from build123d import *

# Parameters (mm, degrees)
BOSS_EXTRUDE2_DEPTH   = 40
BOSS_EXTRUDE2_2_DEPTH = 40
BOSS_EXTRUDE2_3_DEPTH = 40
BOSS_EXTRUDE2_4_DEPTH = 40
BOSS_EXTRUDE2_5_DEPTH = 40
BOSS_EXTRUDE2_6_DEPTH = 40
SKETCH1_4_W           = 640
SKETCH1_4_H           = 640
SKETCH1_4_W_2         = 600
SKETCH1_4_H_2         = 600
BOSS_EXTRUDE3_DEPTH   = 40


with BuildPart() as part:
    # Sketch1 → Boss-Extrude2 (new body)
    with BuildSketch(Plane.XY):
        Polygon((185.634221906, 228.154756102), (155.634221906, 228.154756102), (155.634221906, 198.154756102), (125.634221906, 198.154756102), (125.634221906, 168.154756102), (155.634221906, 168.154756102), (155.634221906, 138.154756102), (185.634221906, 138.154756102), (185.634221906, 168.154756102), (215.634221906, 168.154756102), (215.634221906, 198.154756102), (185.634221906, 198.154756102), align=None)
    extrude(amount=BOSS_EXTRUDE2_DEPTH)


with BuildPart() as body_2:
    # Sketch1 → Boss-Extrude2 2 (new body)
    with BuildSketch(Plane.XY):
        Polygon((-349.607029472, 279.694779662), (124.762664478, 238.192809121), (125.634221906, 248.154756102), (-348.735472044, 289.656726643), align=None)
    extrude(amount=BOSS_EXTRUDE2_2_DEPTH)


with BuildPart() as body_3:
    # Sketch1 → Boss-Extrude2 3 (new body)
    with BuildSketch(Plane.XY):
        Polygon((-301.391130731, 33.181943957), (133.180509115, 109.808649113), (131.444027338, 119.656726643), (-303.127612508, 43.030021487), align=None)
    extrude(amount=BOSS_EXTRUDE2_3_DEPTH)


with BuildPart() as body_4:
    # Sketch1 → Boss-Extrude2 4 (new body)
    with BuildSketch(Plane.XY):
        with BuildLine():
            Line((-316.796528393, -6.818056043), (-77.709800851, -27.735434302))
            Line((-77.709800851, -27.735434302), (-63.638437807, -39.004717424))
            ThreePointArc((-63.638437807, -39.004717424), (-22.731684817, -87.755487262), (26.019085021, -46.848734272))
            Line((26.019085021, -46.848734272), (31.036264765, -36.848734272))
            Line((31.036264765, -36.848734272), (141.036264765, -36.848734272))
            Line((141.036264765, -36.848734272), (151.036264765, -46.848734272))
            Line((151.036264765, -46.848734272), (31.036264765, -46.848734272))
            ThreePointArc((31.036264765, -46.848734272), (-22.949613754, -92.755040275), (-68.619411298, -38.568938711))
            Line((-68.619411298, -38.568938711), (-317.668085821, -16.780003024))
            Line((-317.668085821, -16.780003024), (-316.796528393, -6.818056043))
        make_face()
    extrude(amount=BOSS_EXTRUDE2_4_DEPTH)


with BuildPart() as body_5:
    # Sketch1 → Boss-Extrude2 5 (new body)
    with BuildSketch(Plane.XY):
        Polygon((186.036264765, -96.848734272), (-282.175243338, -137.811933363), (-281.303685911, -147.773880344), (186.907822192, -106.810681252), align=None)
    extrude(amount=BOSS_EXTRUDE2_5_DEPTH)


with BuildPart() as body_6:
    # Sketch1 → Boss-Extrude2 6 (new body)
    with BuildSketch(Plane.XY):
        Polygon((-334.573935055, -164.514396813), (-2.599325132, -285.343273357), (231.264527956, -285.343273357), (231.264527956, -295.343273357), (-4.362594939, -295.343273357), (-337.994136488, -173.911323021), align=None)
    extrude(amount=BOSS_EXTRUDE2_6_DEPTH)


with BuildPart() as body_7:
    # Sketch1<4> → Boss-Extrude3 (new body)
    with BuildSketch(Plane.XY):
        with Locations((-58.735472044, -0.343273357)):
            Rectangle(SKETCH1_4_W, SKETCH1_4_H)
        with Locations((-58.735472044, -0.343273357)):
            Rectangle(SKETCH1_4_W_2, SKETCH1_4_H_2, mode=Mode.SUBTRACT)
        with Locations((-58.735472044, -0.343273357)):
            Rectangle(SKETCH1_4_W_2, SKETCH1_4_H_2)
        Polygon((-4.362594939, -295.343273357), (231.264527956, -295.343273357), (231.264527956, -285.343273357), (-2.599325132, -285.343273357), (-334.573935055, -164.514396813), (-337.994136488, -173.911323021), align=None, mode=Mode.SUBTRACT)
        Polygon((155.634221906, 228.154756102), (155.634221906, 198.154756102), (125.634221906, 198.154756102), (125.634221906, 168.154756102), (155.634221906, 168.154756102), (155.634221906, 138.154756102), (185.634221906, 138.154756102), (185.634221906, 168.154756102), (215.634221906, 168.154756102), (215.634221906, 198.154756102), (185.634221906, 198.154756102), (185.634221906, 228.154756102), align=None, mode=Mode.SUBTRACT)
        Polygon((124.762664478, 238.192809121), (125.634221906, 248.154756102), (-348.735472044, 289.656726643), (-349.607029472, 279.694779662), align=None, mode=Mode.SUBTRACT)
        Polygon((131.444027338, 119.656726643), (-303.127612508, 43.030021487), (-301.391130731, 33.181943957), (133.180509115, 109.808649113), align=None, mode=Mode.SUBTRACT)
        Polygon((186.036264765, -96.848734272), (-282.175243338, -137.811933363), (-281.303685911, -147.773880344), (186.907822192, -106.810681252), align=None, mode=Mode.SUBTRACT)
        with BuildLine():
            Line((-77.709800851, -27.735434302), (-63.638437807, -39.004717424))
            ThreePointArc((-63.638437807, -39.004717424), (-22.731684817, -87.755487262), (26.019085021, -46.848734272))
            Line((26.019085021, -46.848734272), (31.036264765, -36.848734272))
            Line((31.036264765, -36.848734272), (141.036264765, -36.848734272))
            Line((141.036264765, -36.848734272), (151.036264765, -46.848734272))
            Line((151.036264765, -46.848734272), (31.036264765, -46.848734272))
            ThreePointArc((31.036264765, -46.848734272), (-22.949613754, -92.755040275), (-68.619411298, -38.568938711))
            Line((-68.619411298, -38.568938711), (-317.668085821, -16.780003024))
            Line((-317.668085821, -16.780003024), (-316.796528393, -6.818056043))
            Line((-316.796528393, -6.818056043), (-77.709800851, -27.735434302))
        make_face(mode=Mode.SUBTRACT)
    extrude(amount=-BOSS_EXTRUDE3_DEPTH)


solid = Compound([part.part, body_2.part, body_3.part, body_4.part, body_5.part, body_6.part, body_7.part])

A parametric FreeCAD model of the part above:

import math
import FreeCAD as App
import Part
import Sketcher
from FreeCAD import Vector
Q = App.Units.Quantity


def add_polygon(sketch, points):
    """Adds a closed chain of lines whose ends are joined by coincident constraints."""
    first, n = sketch.GeometryCount, len(points)
    for a, b in zip(points, points[1:] + points[:1]):
        sketch.addGeometry(Part.LineSegment(App.Vector(*a, 0), App.Vector(*b, 0)), False)
    for i in range(n):
        sketch.addConstraint(Sketcher.Constraint("Coincident", first + i, 2, first + (i + 1) % n, 1))

doc = App.newDocument("Part")
body = doc.addObject("PartDesign::Body", "Body")

sketch1 = body.newObject("Sketcher::SketchObject", "Sketch")
sketch1.AttachmentSupport = (doc.getObject("XY_Plane"), [""])
sketch1.MapMode = "FlatFace"
add_polygon(sketch1, [(186, 228), (156, 228), (156, 198), (126, 198), (126, 168), (156, 168), (156, 138), (186, 138), (186, 168), (216, 168), (216, 198), (186, 198)])
sketch1.addConstraint([
    Sketcher.Constraint("Horizontal", 0),
    Sketcher.Constraint("Vertical", 1),
    Sketcher.Constraint("Horizontal", 2),
    Sketcher.Constraint("Vertical", 3),
    Sketcher.Constraint("Horizontal", 4),
    Sketcher.Constraint("Vertical", 5),
    Sketcher.Constraint("Horizontal", 6),
    Sketcher.Constraint("Vertical", 7),
    Sketcher.Constraint("Horizontal", 8),
    Sketcher.Constraint("Vertical", 9),
    Sketcher.Constraint("Horizontal", 10),
    Sketcher.Constraint("Vertical", 11),
    Sketcher.Constraint("Horizontal", 4, 2, 7, 2),
    Sketcher.Constraint("Horizontal", 2, 2, 9, 2),
    Sketcher.Constraint("Vertical", 1, 2, 4, 2),
    Sketcher.Constraint("Vertical", 7, 2, 10, 2),
    Sketcher.Constraint("Equal", 0, 2),
    Sketcher.Constraint("Equal", 6, 8),
    Sketcher.Constraint("Equal", 10, 1),
    Sketcher.Constraint("Equal", 1, 3),
    Sketcher.Constraint("Equal", 3, 5),
    Sketcher.Constraint("DistanceX", 0, 2, 0, 1, 30.0),
    Sketcher.Constraint("DistanceX", -1, 1, 0, 2, 155.634222),
    Sketcher.Constraint("DistanceY", -1, 1, 0, 2, 228.154756),
])
pad1 = body.newObject("PartDesign::Pad", "Pad")
pad1.Profile = sketch1
pad1.Length = 40
body2 = doc.addObject("PartDesign::Body", "Body001")

sketch2 = body2.newObject("Sketcher::SketchObject", "Sketch001")
sketch2.AttachmentSupport = (doc.getObject("XY_Plane001"), [""])
sketch2.MapMode = "FlatFace"
add_polygon(sketch2, [(-350, 280), (125, 238), (126, 248), (-349, 290)])
sketch2.addConstraint([
    Sketcher.Constraint("Perpendicular", 0, 1),
    Sketcher.Constraint("Perpendicular", 1, 2),
    Sketcher.Constraint("Perpendicular", 2, 3),
    Sketcher.Constraint("Angle", 0, Q("-5 deg")),
    Sketcher.Constraint("Distance", 1, 10.0),
    Sketcher.Constraint("Distance", 0, 476.181709),
    Sketcher.Constraint("DistanceY", -1, 1, 0, 2, 238.192809),
    Sketcher.Constraint("DistanceX", -1, 1, 1, 2, 125.634222),
])
pad2 = body2.newObject("PartDesign::Pad", "Pad001")
pad2.Profile = sketch2
pad2.Length = 40
body3 = doc.addObject("PartDesign::Body", "Body002")

sketch3 = body3.newObject("Sketcher::SketchObject", "Sketch002")
sketch3.AttachmentSupport = (doc.getObject("XY_Plane002"), [""])
sketch3.MapMode = "FlatFace"
add_polygon(sketch3, [(-301, 33), (133, 110), (131, 120), (-303, 43)])
sketch3.addConstraint([
    Sketcher.Constraint("Perpendicular", 0, 1),
    Sketcher.Constraint("Perpendicular", 1, 2),
    Sketcher.Constraint("Perpendicular", 2, 3),
    Sketcher.Constraint("Angle", 0, Q("10 deg")),
    Sketcher.Constraint("Distance", 1, 10.0),
    Sketcher.Constraint("DistanceX", -1, 1, 0, 2, 133.180509),
    Sketcher.Constraint("DistanceY", -1, 1, 0, 2, 109.808649),
    Sketcher.Constraint("DistanceY", -1, 1, 2, 2, 43.030021),
])
pad3 = body3.newObject("PartDesign::Pad", "Pad002")
pad3.Profile = sketch3
pad3.Length = 40
body4 = doc.addObject("PartDesign::Body", "Body003")

sketch4 = body4.newObject("Sketcher::SketchObject", "Sketch003")
sketch4.AttachmentSupport = (doc.getObject("XY_Plane003"), [""])
sketch4.MapMode = "FlatFace"
sketch4.addGeometry([
    Part.LineSegment(Vector(-78, -28, 0), Vector(-317, -7, 0)),
    Part.LineSegment(Vector(-317, -7, 0), Vector(-318, -17, 0)),
    Part.LineSegment(Vector(-318, -17, 0), Vector(-69, -39, 0)),
    Part.ArcOfCircle(Part.Circle(Vector(-19, -43, 0), Vector(0, 0, 1), 50), math.radians(175), math.radians(356)),
    Part.LineSegment(Vector(31, -47, 0), Vector(151, -47, 0)),
    Part.LineSegment(Vector(151, -47, 0), Vector(141, -37, 0)),
    Part.LineSegment(Vector(141, -37, 0), Vector(31, -37, 0)),
    Part.LineSegment(Vector(31, -37, 0), Vector(26, -47, 0)),
    Part.ArcOfCircle(Part.Circle(Vector(-19, -43, 0), Vector(0, 0, 1), 45), math.radians(175), math.radians(355)),
    Part.LineSegment(Vector(-64, -39, 0), Vector(-78, -28, 0)),
], False)
sketch4.addConstraint([
    Sketcher.Constraint("Coincident", 0, 2, 1, 1),
    Sketcher.Constraint("Coincident", 1, 2, 2, 1),
    Sketcher.Constraint("Coincident", 2, 2, 3, 1),
    Sketcher.Constraint("Coincident", 3, 2, 4, 1),
    Sketcher.Constraint("Coincident", 4, 2, 5, 1),
    Sketcher.Constraint("Coincident", 5, 2, 6, 1),
    Sketcher.Constraint("Coincident", 6, 2, 7, 1),
    Sketcher.Constraint("Coincident", 7, 2, 8, 2),
    Sketcher.Constraint("Coincident", 8, 1, 9, 1),
    Sketcher.Constraint("Coincident", 9, 2, 0, 1),
    Sketcher.Constraint("Horizontal", 4),
    Sketcher.Constraint("Horizontal", 6),
    Sketcher.Constraint("Coincident", 8, 3, 3, 3),
    Sketcher.Constraint("Perpendicular", 0, 1),
    Sketcher.Constraint("Perpendicular", 1, 2),
    Sketcher.Constraint("Horizontal", 4, 2, 7, 2),
    Sketcher.Constraint("Vertical", 3, 2, 6, 2),
    Sketcher.Constraint("Radius", 3, 50.0),
    Sketcher.Constraint("Radius", 8, 45.0),
    Sketcher.Constraint("DistanceX", 4, 1, 4, 2, 120.0),
    Sketcher.Constraint("DistanceX", 6, 2, 6, 1, 110.0),
    Sketcher.Constraint("Angle", 0, Q("175 deg")),
    Sketcher.Constraint("Angle", 5, Q("135 deg")),
    Sketcher.Constraint("Distance", 0, 240.0),
    Sketcher.Constraint("Distance", 1, 10.0),
    Sketcher.Constraint("Distance", 2, 250.0),
    Sketcher.Constraint("DistanceX", 9, 2, -1, 1, 77.709801),
    Sketcher.Constraint("DistanceY", 7, 2, 9, 2, 19.1133),
    Sketcher.Constraint("DistanceY", 2, 2, -1, 1, 38.568939),
    Sketcher.Constraint("DistanceX", 0, 2, 3, 3, 297.986852),
    Sketcher.Constraint("DistanceY", 8, 1, 2, 2, 0.435779),
])
pad4 = body4.newObject("PartDesign::Pad", "Pad003")
pad4.Profile = sketch4
pad4.Length = 40
body5 = doc.addObject("PartDesign::Body", "Body004")

sketch5 = body5.newObject("Sketcher::SketchObject", "Sketch004")
sketch5.AttachmentSupport = (doc.getObject("XY_Plane004"), [""])
sketch5.MapMode = "FlatFace"
add_polygon(sketch5, [(186, -97), (-282, -138), (-281, -148), (187, -107)])
sketch5.addConstraint([
    Sketcher.Constraint("Perpendicular", 0, 1),
    Sketcher.Constraint("Perpendicular", 1, 2),
    Sketcher.Constraint("Perpendicular", 2, 3),
    Sketcher.Constraint("Angle", 0, Q("-175 deg")),
    Sketcher.Constraint("Distance", 0, 470.0),
    Sketcher.Constraint("Distance", 1, 10.0),
    Sketcher.Constraint("DistanceY", 1, 2, -1, 1, 147.77388),
    Sketcher.Constraint("DistanceX", 0, 2, -1, 1, 282.175243),
])
pad5 = body5.newObject("PartDesign::Pad", "Pad004")
pad5.Profile = sketch5
pad5.Length = 40
body6 = doc.addObject("PartDesign::Body", "Body005")

sketch6 = body6.newObject("Sketcher::SketchObject", "Sketch005")
sketch6.AttachmentSupport = (doc.getObject("XY_Plane005"), [""])
sketch6.MapMode = "FlatFace"
add_polygon(sketch6, [(-3, -285), (-335, -165), (-338, -174), (-4, -295), (231, -295), (231, -285)])
sketch6.addConstraint([
    Sketcher.Constraint("Horizontal", 3),
    Sketcher.Constraint("Vertical", 4),
    Sketcher.Constraint("Horizontal", 5),
    Sketcher.Constraint("Perpendicular", 0, 1),
    Sketcher.Constraint("Perpendicular", 1, 2),
    Sketcher.Constraint("DistanceY", 4, 1, 4, 2, 10.0),
    Sketcher.Constraint("Angle", 0, Q("160 deg")),
    Sketcher.Constraint("Distance", 1, 10.0),
    Sketcher.Constraint("Distance", 0, 353.280001),
    Sketcher.Constraint("DistanceX", 3, 1, 3, 2, 235.627123),
    Sketcher.Constraint("DistanceX", 0, 2, -1, 1, 334.573935),
    Sketcher.Constraint("DistanceY", 0, 2, -1, 1, 164.514397),
])
pad6 = body6.newObject("PartDesign::Pad", "Pad005")
pad6.Profile = sketch6
pad6.Length = 40
body7 = doc.addObject("PartDesign::Body", "Body006")

sketch7 = body7.newObject("Sketcher::SketchObject", "Sketch006")
sketch7.AttachmentSupport = (doc.getObject("XY_Plane006"), [""])
sketch7.MapMode = "FlatFace"
add_polygon(sketch7, [(-379, 320), (-379, -320), (261, -320), (261, 320)])
sketch7.addGeometry(Part.LineSegment(Vector(-317, -7, 0), Vector(-78, -28, 0)), False)
sketch7.addGeometry(Part.LineSegment(Vector(-78, -28, 0), Vector(-64, -39, 0)), False)
sketch7.addGeometry(Part.ArcOfCircle(Part.Circle(Vector(-19, -43, 0), Vector(0, 0, 1), 45), math.radians(175), math.radians(355)), False)
sketch7.addGeometry(Part.LineSegment(Vector(26, -47, 0), Vector(31, -37, 0)), False)
sketch7.addGeometry(Part.LineSegment(Vector(31, -37, 0), Vector(141, -37, 0)), False)
sketch7.addGeometry(Part.LineSegment(Vector(141, -37, 0), Vector(151, -47, 0)), False)
sketch7.addGeometry(Part.LineSegment(Vector(151, -47, 0), Vector(31, -47, 0)), False)
sketch7.addGeometry(Part.ArcOfCircle(Part.Circle(Vector(-19, -43, 0), Vector(0, 0, 1), 50), math.radians(175), math.radians(356)), False)
sketch7.addGeometry(Part.LineSegment(Vector(-69, -39, 0), Vector(-318, -17, 0)), False)
sketch7.addGeometry(Part.LineSegment(Vector(-318, -17, 0), Vector(-317, -7, 0)), False)
add_polygon(sketch7, [(231, -295), (-4, -295), (-338, -174), (-335, -165), (-3, -285), (231, -285)])
add_polygon(sketch7, [(-282, -138), (186, -97), (187, -107), (-281, -148)])
add_polygon(sketch7, [(-303, 43), (131, 120), (133, 110), (-301, 33)])
add_polygon(sketch7, [(126, 248), (125, 238), (-350, 280), (-349, 290)])
add_polygon(sketch7, [(156, 198), (156, 228), (186, 228), (186, 198), (216, 198), (216, 168), (186, 168), (186, 138), (156, 138), (156, 168), (126, 168), (126, 198)])
sketch7.addConstraint([
    Sketcher.Constraint("Coincident", 4, 2, 5, 1),
    Sketcher.Constraint("Coincident", 5, 2, 6, 1),
    Sketcher.Constraint("Coincident", 6, 2, 7, 1),
    Sketcher.Constraint("Coincident", 7, 2, 8, 1),
    Sketcher.Constraint("Coincident", 8, 2, 9, 1),
    Sketcher.Constraint("Coincident", 9, 2, 10, 1),
    Sketcher.Constraint("Coincident", 10, 2, 11, 2),
    Sketcher.Constraint("Coincident", 11, 1, 12, 1),
    Sketcher.Constraint("Coincident", 12, 2, 13, 1),
    Sketcher.Constraint("Coincident", 13, 2, 4, 1),
    Sketcher.Constraint("Vertical", 0),
    Sketcher.Constraint("Horizontal", 1),
    Sketcher.Constraint("Vertical", 2),
    Sketcher.Constraint("Horizontal", 3),
    Sketcher.Constraint("Horizontal", 8),
    Sketcher.Constraint("Horizontal", 10),
    Sketcher.Constraint("Horizontal", 14),
    Sketcher.Constraint("Horizontal", 18),
    Sketcher.Constraint("Vertical", 19),
    Sketcher.Constraint("Vertical", 32),
    Sketcher.Constraint("Horizontal", 33),
    Sketcher.Constraint("Vertical", 34),
    Sketcher.Constraint("Horizontal", 35),
    Sketcher.Constraint("Vertical", 36),
    Sketcher.Constraint("Horizontal", 37),
    Sketcher.Constraint("Vertical", 38),
    Sketcher.Constraint("Horizontal", 39),
    Sketcher.Constraint("Vertical", 40),
    Sketcher.Constraint("Horizontal", 41),
    Sketcher.Constraint("Vertical", 42),
    Sketcher.Constraint("Horizontal", 43),
    Sketcher.Constraint("Coincident", 11, 3, 6, 3),
    Sketcher.Constraint("Parallel", 4, 12),
    Sketcher.Constraint("Perpendicular", 12, 13),
    Sketcher.Constraint("Perpendicular", 15, 16),
    Sketcher.Constraint("Perpendicular", 16, 17),
    Sketcher.Constraint("Perpendicular", 20, 21),
    Sketcher.Constraint("Perpendicular", 21, 22),
    Sketcher.Constraint("Perpendicular", 22, 23),
    Sketcher.Constraint("Perpendicular", 24, 25),
    Sketcher.Constraint("Perpendicular", 25, 26),
    Sketcher.Constraint("Perpendicular", 26, 27),
    Sketcher.Constraint("Parallel", 13, 28),
    Sketcher.Constraint("Perpendicular", 28, 29),
    Sketcher.Constraint("Perpendicular", 29, 30),
    Sketcher.Constraint("Perpendicular", 30, 31),
    Sketcher.Constraint("Horizontal", 6, 2, 9, 2),
    Sketcher.Constraint("Horizontal", 37, 2, 40, 2),
    Sketcher.Constraint("Horizontal", 35, 2, 42, 2),
    Sketcher.Constraint("Vertical", 7, 2, 10, 2),
    Sketcher.Constraint("Vertical", 34, 2, 37, 2),
    Sketcher.Constraint("Vertical", 32, 2, 39, 2),
    Sketcher.Constraint("Vertical", 31, 2, 41, 2),
    Sketcher.Constraint("Equal", 33, 35),
    Sketcher.Constraint("Equal", 39, 41),
    Sketcher.Constraint("Equal", 3, 0),
    Sketcher.Constraint("Equal", 43, 32),
    Sketcher.Constraint("Equal", 34, 36),
    Sketcher.Constraint("Equal", 36, 38),
    Sketcher.Constraint("Equal", 13, 16),
    Sketcher.Constraint("Equal", 16, 21),
    Sketcher.Constraint("Equal", 23, 25),
    Sketcher.Constraint("Equal", 27, 28),
    Sketcher.Constraint("Radius", 6, 45.0),
    Sketcher.Constraint("Radius", 11, 50.0),
    Sketcher.Constraint("DistanceX", 1, 1, 1, 2, 640.0),
    Sketcher.Constraint("DistanceX", 8, 1, 8, 2, 110.0),
    Sketcher.Constraint("DistanceX", 10, 2, 10, 1, 120.0),
    Sketcher.Constraint("DistanceX", 33, 1, 33, 2, 30.0),
    Sketcher.Constraint("DistanceY", 19, 2, 19, 1, 10.0),
    Sketcher.Constraint("Angle", 4, Q("-5 deg")),
    Sketcher.Constraint("Angle", 9, Q("-45 deg")),
    Sketcher.Constraint("Angle", 15, Q("160 deg")),
    Sketcher.Constraint("Angle", 20, Q("5 deg")),
    Sketcher.Constraint("Angle", 24, Q("10 deg")),
    Sketcher.Constraint("Distance", 4, 240.0),
    Sketcher.Constraint("Distance", 12, 250.0),
    Sketcher.Constraint("Distance", 13, 10.0),
    Sketcher.Constraint("Distance", 20, 470.0),
    Sketcher.Constraint("DistanceX", 18, 2, 1, 2, 30.0),
    Sketcher.Constraint("DistanceY", 1, 2, 18, 2, 35.0),
    Sketcher.Constraint("DistanceX", 9, 2, 20, 2, 35.0),
    Sketcher.Constraint("DistanceY", 20, 2, 9, 2, 50.0),
    Sketcher.Constraint("DistanceY", 13, 2, 26, 2, 40.0),
    Sketcher.Constraint("DistanceX", 3, 2, 30, 2, 30.0),
    Sketcher.Constraint("DistanceY", 30, 2, 3, 2, 30.0),
    Sketcher.Constraint("DistanceY", 32, 2, 31, 2, 20.0),
    Sketcher.Constraint("Distance", 17, 353.280001),
    Sketcher.Constraint("DistanceX", 4, 2, -1, 1, 77.709801),
    Sketcher.Constraint("DistanceY", 6, 2, 4, 2, 19.1133),
    Sketcher.Constraint("DistanceX", 12, 2, 22, 2, 36.3644),
    Sketcher.Constraint("DistanceX", 28, 2, 8, 2, 16.2736),
    Sketcher.Constraint("DistanceX", 29, 2, 26, 2, 48.215899),
    Sketcher.Constraint("DistanceX", 29, 2, 13, 2, 32.810501),
    Sketcher.Constraint("DistanceX", 14, 2, 14, 1, 235.627123),
    Sketcher.Constraint("DistanceY", 11, 1, -1, 1, 38.568939),
    Sketcher.Constraint("DistanceX", -1, 1, 25, 2, 133.180509),
    Sketcher.Constraint("DistanceY", -1, 1, 28, 2, 238.192809),
    Sketcher.Constraint("DistanceX", 5, 2, 6, 3, 44.828761),
])
pad7 = body7.newObject("PartDesign::Pad", "Pad006")
pad7.Profile = sketch7
pad7.Length = 40
pad7.Reversed = True

doc.recompute()
